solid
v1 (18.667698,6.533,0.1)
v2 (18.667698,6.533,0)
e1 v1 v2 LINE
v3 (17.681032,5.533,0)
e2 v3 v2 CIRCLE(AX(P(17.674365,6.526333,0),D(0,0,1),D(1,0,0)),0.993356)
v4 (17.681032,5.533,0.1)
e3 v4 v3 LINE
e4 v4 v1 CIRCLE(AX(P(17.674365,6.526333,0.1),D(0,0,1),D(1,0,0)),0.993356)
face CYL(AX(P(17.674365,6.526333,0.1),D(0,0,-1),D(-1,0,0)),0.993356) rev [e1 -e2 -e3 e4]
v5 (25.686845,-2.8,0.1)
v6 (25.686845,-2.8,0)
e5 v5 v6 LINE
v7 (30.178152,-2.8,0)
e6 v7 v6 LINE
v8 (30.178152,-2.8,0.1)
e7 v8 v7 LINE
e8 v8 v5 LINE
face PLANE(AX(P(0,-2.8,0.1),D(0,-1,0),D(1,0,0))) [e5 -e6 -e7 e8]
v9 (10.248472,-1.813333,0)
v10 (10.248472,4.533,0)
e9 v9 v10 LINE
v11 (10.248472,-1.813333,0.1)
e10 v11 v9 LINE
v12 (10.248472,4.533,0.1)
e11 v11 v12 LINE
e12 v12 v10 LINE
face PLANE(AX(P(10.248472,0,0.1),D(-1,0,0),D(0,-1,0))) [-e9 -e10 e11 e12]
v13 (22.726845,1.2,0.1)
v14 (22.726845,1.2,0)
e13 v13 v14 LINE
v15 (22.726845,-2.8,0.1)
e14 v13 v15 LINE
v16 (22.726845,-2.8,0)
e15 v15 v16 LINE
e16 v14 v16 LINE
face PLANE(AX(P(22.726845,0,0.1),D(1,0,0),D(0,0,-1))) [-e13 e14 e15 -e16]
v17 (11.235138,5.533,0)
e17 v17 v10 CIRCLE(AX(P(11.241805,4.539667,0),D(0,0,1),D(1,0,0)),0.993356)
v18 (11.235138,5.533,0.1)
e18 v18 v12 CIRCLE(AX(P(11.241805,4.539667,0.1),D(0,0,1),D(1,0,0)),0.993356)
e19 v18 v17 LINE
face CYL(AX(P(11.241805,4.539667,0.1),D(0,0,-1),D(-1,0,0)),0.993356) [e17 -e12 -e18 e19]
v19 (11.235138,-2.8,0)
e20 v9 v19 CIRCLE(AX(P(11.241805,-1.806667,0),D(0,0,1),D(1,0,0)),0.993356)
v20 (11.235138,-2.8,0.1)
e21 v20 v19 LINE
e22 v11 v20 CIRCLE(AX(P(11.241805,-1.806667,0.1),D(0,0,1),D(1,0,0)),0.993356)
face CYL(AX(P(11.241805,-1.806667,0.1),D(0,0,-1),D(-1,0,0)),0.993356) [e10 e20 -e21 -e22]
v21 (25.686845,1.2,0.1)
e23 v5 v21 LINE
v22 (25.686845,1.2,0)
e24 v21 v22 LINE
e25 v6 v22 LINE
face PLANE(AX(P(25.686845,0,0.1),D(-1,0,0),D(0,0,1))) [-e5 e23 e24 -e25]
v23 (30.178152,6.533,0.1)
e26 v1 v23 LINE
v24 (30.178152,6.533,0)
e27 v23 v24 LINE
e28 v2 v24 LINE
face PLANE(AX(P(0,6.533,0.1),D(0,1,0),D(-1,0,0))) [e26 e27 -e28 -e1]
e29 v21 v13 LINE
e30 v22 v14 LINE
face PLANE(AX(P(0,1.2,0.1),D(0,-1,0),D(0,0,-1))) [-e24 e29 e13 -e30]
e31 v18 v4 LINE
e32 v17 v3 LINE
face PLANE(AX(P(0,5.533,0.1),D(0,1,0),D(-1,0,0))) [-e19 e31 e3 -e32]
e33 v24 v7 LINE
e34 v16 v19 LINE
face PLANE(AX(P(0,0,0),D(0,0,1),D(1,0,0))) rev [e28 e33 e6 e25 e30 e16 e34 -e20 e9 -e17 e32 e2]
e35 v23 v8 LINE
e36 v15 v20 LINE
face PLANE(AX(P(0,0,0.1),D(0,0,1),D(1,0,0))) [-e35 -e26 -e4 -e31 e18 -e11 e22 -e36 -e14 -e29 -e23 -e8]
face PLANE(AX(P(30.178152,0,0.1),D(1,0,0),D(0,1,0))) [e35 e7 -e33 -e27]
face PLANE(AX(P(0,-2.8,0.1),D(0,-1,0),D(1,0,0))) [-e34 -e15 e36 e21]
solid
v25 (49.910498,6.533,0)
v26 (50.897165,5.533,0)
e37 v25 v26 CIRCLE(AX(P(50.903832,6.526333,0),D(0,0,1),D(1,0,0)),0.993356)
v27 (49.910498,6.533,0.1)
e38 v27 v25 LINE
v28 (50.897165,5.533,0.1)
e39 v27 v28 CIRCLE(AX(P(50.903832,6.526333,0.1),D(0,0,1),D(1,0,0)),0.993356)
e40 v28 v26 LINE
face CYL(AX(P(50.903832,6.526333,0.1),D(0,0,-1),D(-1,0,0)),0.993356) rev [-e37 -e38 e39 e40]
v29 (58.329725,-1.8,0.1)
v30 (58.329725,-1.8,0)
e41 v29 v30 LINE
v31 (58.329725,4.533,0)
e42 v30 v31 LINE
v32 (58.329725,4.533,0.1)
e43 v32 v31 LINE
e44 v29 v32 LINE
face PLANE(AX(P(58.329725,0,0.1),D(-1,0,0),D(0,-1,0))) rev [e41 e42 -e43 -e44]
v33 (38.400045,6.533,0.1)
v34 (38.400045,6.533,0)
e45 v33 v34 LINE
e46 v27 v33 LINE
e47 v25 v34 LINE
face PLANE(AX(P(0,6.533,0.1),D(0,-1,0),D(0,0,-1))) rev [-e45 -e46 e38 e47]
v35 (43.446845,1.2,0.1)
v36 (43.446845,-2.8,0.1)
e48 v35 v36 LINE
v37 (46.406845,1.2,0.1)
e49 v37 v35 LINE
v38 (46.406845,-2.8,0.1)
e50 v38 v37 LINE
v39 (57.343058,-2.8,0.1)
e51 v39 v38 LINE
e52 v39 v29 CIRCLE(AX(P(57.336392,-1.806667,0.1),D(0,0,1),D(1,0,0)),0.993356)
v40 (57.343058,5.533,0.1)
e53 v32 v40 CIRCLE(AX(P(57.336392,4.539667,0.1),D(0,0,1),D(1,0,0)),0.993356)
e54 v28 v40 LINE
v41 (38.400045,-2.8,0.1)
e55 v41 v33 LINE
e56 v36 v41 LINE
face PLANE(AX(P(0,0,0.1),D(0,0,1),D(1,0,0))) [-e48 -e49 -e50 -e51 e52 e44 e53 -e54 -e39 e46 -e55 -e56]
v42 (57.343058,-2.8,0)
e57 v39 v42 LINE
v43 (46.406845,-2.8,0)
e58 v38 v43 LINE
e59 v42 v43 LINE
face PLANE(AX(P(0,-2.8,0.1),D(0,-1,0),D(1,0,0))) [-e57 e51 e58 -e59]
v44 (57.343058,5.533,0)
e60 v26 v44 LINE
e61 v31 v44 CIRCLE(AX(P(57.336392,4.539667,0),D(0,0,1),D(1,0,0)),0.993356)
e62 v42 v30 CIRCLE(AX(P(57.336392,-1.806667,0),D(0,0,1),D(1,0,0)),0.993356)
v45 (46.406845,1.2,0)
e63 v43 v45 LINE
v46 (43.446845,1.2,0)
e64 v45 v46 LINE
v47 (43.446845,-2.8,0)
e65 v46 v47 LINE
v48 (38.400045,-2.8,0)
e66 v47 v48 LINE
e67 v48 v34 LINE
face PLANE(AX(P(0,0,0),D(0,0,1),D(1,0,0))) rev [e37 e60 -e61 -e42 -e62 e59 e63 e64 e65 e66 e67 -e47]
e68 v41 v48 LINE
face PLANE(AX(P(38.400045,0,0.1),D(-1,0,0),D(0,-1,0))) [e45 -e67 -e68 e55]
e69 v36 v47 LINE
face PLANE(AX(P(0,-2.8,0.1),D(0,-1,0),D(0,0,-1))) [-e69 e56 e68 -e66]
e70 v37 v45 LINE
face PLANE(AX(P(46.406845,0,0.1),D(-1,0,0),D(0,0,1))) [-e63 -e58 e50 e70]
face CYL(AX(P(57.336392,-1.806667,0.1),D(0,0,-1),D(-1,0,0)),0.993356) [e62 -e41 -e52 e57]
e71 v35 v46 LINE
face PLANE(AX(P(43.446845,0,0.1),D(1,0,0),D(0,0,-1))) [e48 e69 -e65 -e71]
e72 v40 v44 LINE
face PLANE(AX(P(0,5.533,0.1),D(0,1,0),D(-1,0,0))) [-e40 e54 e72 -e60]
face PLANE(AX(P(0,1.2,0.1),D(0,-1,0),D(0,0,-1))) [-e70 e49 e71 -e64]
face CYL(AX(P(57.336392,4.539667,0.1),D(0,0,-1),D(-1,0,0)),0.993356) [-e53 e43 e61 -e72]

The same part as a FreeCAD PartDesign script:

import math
import FreeCAD as App
import Part
import Sketcher
from FreeCAD import Vector

doc = App.newDocument("Part")
body = doc.addObject("PartDesign::Body", "Body")

sketch1 = body.newObject("Sketcher::SketchObject", "Sketch")
sketch1.AttachmentSupport = (doc.getObject("XY_Plane"), [""])
sketch1.MapMode = "FlatFace"
sketch1.addGeometry([
    Part.LineSegment(Vector(11.235138, -2.8, 0), Vector(22.726845, -2.8, 0)),
    Part.LineSegment(Vector(22.726845, -2.8, 0), Vector(22.726845, 1.2, 0)),
    Part.LineSegment(Vector(22.726845, 1.2, 0), Vector(25.686845, 1.2, 0)),
    Part.LineSegment(Vector(25.686845, 1.2, 0), Vector(25.686845, -2.8, 0)),
    Part.LineSegment(Vector(25.686845, -2.8, 0), Vector(30.178152, -2.8, 0)),
    Part.LineSegment(Vector(30.178152, -2.8, 0), Vector(30.178152, 6.533, 0)),
    Part.LineSegment(Vector(30.178152, 6.533, 0), Vector(18.667698, 6.533, 0)),
    Part.ArcOfCircle(Part.Circle(Vector(17.674365, 6.526333, 0), Vector(0, 0, 1), 0.993356), math.radians(-89.61547), math.radians(0.38453)),
    Part.LineSegment(Vector(17.681032, 5.533, 0), Vector(11.235138, 5.533, 0)),
    Part.ArcOfCircle(Part.Circle(Vector(11.241805, 4.539667, 0), Vector(0, 0, 1), 0.993356), math.radians(90.38453), math.radians(180.38453)),
    Part.LineSegment(Vector(10.248472, 4.533, 0), Vector(10.248472, -1.813333, 0)),
    Part.ArcOfCircle(Part.Circle(Vector(11.241805, -1.806667, 0), Vector(0, 0, 1), 0.993356), math.radians(-179.61547), math.radians(-90.38453)),
], False)
sketch1.addConstraint([
    Sketcher.Constraint("Coincident", 0, 2, 1, 1),
    Sketcher.Constraint("Coincident", 1, 2, 2, 1),
    Sketcher.Constraint("Coincident", 2, 2, 3, 1),
    Sketcher.Constraint("Coincident", 3, 2, 4, 1),
    Sketcher.Constraint("Coincident", 4, 2, 5, 1),
    Sketcher.Constraint("Coincident", 5, 2, 6, 1),
    Sketcher.Constraint("Coincident", 6, 2, 7, 2),
    Sketcher.Constraint("Coincident", 7, 1, 8, 1),
    Sketcher.Constraint("Coincident", 8, 2, 9, 1),
    Sketcher.Constraint("Coincident", 9, 2, 10, 1),
    Sketcher.Constraint("Coincident", 10, 2, 11, 1),
    Sketcher.Constraint("Coincident", 11, 2, 0, 1),
    Sketcher.Constraint("Horizontal", 0),
    Sketcher.Constraint("Vertical", 1),
    Sketcher.Constraint("Horizontal", 2),
    Sketcher.Constraint("Vertical", 3),
    Sketcher.Constraint("Horizontal", 4),
    Sketcher.Constraint("Vertical", 5),
    Sketcher.Constraint("Horizontal", 6),
    Sketcher.Constraint("Horizontal", 8),
    Sketcher.Constraint("Vertical", 10),
    Sketcher.Constraint("DistanceY", 1, 1, 1, 2, 4.0),
    Sketcher.Constraint("DistanceY", 3, 2, 3, 1, 4.0),
    Sketcher.Constraint("DistanceY", 7, 1, 6, 2, 1.0),
    Sketcher.Constraint("DistanceY", 9, 2, 8, 2, 1.0),
    Sketcher.Constraint("DistanceX", 2, 1, 2, 2, 2.96),
    Sketcher.Constraint("DistanceY", 0, 2, -1, 1, 2.8),
    Sketcher.Constraint("DistanceY", 5, 1, 5, 2, 9.333),
    Sketcher.Constraint("Radius", 7, 0.993356),
    Sketcher.Constraint("Radius", 9, 0.993356),
    Sketcher.Constraint("Radius", 11, 0.993356),
    Sketcher.Constraint("DistanceY", 11, 3, 7, 3, 8.333),
    Sketcher.Constraint("DistanceY", 10, 2, 9, 3, 6.353),
    Sketcher.Constraint("DistanceX", -1, 1, 6, 2, 18.667698),
    Sketcher.Constraint("DistanceX", 0, 1, 0, 2, 11.491707),
    Sketcher.Constraint("DistanceX", 4, 1, 4, 2, 4.491306),
    Sketcher.Constraint("DistanceX", 6, 2, 6, 1, 11.510453),
    Sketcher.Constraint("DistanceX", 8, 2, 8, 1, 6.445893),
    Sketcher.Constraint("DistanceX", -1, 1, 7, 1, 17.681032),
])
pad1 = body.newObject("PartDesign::Pad", "Pad")
pad1.Profile = sketch1
pad1.Length = 0.1
body2 = doc.addObject("PartDesign::Body", "Body001")

sketch2 = body2.newObject("Sketcher::SketchObject", "Sketch001")
sketch2.AttachmentSupport = (doc.getObject("XY_Plane001"), [""])
sketch2.MapMode = "FlatFace"
sketch2.addGeometry([
    Part.LineSegment(Vector(46.406845, -2.8, 0), Vector(57.343058, -2.8, 0)),
    Part.ArcOfCircle(Part.Circle(Vector(57.336392, -1.806667, 0), Vector(0, 0, 1), 0.993356), math.radians(-89.61547), math.radians(0.38453)),
    Part.LineSegment(Vector(58.329725, -1.8, 0), Vector(58.329725, 4.533, 0)),
    Part.ArcOfCircle(Part.Circle(Vector(57.336392, 4.539667, 0), Vector(0, 0, 1), 0.993356), math.radians(-0.38453), math.radians(89.61547)),
    Part.LineSegment(Vector(57.343058, 5.533, 0), Vector(50.897165, 5.533, 0)),
    Part.ArcOfCircle(Part.Circle(Vector(50.903832, 6.526333, 0), Vector(0, 0, 1), 0.993356), math.radians(179.61547), math.radians(269.61547)),
    Part.LineSegment(Vector(49.910498, 6.533, 0), Vector(38.400045, 6.533, 0)),
    Part.LineSegment(Vector(38.400045, 6.533, 0), Vector(38.400045, -2.8, 0)),
    Part.LineSegment(Vector(38.400045, -2.8, 0), Vector(43.446845, -2.8, 0)),
    Part.LineSegment(Vector(43.446845, -2.8, 0), Vector(43.446845, 1.2, 0)),
    Part.LineSegment(Vector(43.446845, 1.2, 0), Vector(46.406845, 1.2, 0)),
    Part.LineSegment(Vector(46.406845, 1.2, 0), Vector(46.406845, -2.8, 0)),
], False)
sketch2.addConstraint([
    Sketcher.Constraint("Coincident", 0, 2, 1, 1),
    Sketcher.Constraint("Coincident", 1, 2, 2, 1),
    Sketcher.Constraint("Coincident", 2, 2, 3, 1),
    Sketcher.Constraint("Coincident", 3, 2, 4, 1),
    Sketcher.Constraint("Coincident", 4, 2, 5, 2),
    Sketcher.Constraint("Coincident", 5, 1, 6, 1),
    Sketcher.Constraint("Coincident", 6, 2, 7, 1),
    Sketcher.Constraint("Coincident", 7, 2, 8, 1),
    Sketcher.Constraint("Coincident", 8, 2, 9, 1),
    Sketcher.Constraint("Coincident", 9, 2, 10, 1),
    Sketcher.Constraint("Coincident", 10, 2, 11, 1),
    Sketcher.Constraint("Coincident", 11, 2, 0, 1),
    Sketcher.Constraint("Horizontal", 0),
    Sketcher.Constraint("Vertical", 2),
    Sketcher.Constraint("Horizontal", 4),
    Sketcher.Constraint("Horizontal", 6),
    Sketcher.Constraint("Vertical", 7),
    Sketcher.Constraint("Horizontal", 8),
    Sketcher.Constraint("Vertical", 9),
    Sketcher.Constraint("Horizontal", 10),
    Sketcher.Constraint("Vertical", 11),
    Sketcher.Constraint("Equal", 1, 3),
    Sketcher.Constraint("Equal", 3, 5),
    Sketcher.Constraint("Horizontal", 0, 2, 7, 2),
    Sketcher.Constraint("Vertical", 1, 3, 3, 3),
    Sketcher.Constraint("Vertical", 0, 2, 3, 2),
    Sketcher.Constraint("DistanceY", 9, 1, 9, 2, 4.0),
    Sketcher.Constraint("DistanceY", 0, 2, 1, 2, 1.0),
    Sketcher.Constraint("DistanceY", 4, 2, 5, 1, 1.0),
    Sketcher.Constraint("DistanceX", 10, 1, 10, 2, 2.96),
    Sketcher.Constraint("DistanceY", 0, 2, -1, 1, 2.8),
    Sketcher.Constraint("DistanceY", 2, 1, 2, 2, 6.333),
    Sketcher.Constraint("DistanceX", 8, 1, 8, 2, 5.0468),
    Sketcher.Constraint("Radius", 1, 0.993356),
    Sketcher.Constraint("DistanceY", 1, 3, 5, 3, 8.333),
    Sketcher.Constraint("DistanceX", -1, 1, 5, 1, 49.910498),
    Sketcher.Constraint("DistanceX", 0, 1, 0, 2, 10.936213),
    Sketcher.Constraint("DistanceX", 4, 2, 4, 1, 6.445893),
    Sketcher.Constraint("DistanceX", 6, 2, 6, 1, 11.510453),
])
pad2 = body2.newObject("PartDesign::Pad", "Pad001")
pad2.Profile = sketch2
pad2.Length = 0.1

doc.recompute()
